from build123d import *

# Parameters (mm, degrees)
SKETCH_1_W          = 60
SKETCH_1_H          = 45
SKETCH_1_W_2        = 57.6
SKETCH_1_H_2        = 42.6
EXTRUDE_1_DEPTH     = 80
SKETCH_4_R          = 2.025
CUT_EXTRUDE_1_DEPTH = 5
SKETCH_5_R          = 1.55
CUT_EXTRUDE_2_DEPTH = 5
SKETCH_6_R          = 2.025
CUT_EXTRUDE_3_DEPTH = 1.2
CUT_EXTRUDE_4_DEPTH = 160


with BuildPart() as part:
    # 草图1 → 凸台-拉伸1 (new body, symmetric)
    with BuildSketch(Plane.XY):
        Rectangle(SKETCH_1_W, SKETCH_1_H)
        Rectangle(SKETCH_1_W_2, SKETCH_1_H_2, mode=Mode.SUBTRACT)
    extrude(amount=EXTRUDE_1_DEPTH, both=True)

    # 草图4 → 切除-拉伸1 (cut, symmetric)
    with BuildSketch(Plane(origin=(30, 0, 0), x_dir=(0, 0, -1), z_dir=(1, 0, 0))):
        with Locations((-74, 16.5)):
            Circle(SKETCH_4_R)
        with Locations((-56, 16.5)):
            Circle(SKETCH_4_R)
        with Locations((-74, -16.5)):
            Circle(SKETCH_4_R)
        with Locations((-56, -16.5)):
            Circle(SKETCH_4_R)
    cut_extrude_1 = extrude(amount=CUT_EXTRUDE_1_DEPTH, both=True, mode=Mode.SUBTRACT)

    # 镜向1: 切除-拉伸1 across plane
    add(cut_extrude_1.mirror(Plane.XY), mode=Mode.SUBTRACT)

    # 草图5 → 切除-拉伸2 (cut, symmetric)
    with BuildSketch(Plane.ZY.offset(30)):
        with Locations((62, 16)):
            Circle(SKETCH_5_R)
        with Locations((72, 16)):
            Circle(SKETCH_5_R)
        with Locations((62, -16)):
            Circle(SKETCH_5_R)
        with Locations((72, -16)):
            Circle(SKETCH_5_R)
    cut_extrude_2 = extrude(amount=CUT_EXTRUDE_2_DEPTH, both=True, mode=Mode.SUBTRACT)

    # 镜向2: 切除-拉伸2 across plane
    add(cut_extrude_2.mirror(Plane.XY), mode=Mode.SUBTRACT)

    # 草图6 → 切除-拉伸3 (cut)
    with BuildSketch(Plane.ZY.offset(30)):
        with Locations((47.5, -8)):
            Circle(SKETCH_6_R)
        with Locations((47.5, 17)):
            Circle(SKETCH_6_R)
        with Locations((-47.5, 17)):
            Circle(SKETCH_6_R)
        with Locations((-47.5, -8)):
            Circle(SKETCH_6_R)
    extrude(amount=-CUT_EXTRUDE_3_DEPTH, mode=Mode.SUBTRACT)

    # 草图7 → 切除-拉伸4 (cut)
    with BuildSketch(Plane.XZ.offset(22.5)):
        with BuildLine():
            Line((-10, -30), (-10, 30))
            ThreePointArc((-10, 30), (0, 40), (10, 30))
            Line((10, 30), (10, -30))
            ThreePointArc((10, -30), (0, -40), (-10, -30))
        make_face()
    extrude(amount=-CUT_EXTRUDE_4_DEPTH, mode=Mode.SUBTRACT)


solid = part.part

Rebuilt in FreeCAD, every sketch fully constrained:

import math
import FreeCAD as App
import Part
import Sketcher
from FreeCAD import Vector
Q = App.Units.Quantity

doc = App.newDocument("Part")
body = doc.addObject("PartDesign::Body", "Body")

sketch1 = body.newObject("Sketcher::SketchObject", "Sketch")
sketch1.AttachmentSupport = (doc.getObject("XY_Plane"), [""])
sketch1.MapMode = "FlatFace"
sketch1.addGeometry(Part.LineSegment(Vector(-30, 22.5, 0), Vector(-30, -22.5, 0)), False)
sketch1.addGeometry(Part.LineSegment(Vector(-30, -22.5, 0), Vector(30, -22.5, 0)), False)
sketch1.addGeometry(Part.LineSegment(Vector(30, -22.5, 0), Vector(30, 22.5, 0)), False)
sketch1.addGeometry(Part.LineSegment(Vector(30, 22.5, 0), Vector(-30, 22.5, 0)), False)
sketch1.addGeometry(Part.LineSegment(Vector(28.8, -21.3, 0), Vector(-28.8, -21.3, 0)), False)
sketch1.addGeometry(Part.LineSegment(Vector(-28.8, -21.3, 0), Vector(-28.8, 21.3, 0)), False)
sketch1.addGeometry(Part.LineSegment(Vector(-28.8, 21.3, 0), Vector(28.8, 21.3, 0)), False)
sketch1.addGeometry(Part.LineSegment(Vector(28.8, 21.3, 0), Vector(28.8, -21.3, 0)), False)
sketch1.addConstraint(Sketcher.Constraint("Coincident", 0, 2, 1, 1))
sketch1.addConstraint(Sketcher.Constraint("Coincident", 1, 2, 2, 1))
sketch1.addConstraint(Sketcher.Constraint("Coincident", 2, 2, 3, 1))
sketch1.addConstraint(Sketcher.Constraint("Coincident", 3, 2, 0, 1))
sketch1.addConstraint(Sketcher.Constraint("Coincident", 4, 2, 5, 1))
sketch1.addConstraint(Sketcher.Constraint("Coincident", 5, 2, 6, 1))
sketch1.addConstraint(Sketcher.Constraint("Coincident", 6, 2, 7, 1))
sketch1.addConstraint(Sketcher.Constraint("Coincident", 7, 2, 4, 1))
sketch1.addConstraint(Sketcher.Constraint("Vertical", 0))
sketch1.addConstraint(Sketcher.Constraint("Horizontal", 1))
sketch1.addConstraint(Sketcher.Constraint("Vertical", 2))
sketch1.addConstraint(Sketcher.Constraint("Horizontal", 3))
sketch1.addConstraint(Sketcher.Constraint("Horizontal", 4))
sketch1.addConstraint(Sketcher.Constraint("Vertical", 5))
sketch1.addConstraint(Sketcher.Constraint("Horizontal", 6))
sketch1.addConstraint(Sketcher.Constraint("Vertical", 7))
sketch1.addConstraint(Sketcher.Constraint("Symmetric", 0, 2, 2, 2, -1, 1))
sketch1.addConstraint(Sketcher.Constraint("Symmetric", 4, 2, 6, 2, -1, 1))
sketch1.addConstraint(Sketcher.Constraint("DistanceX", 1, 1, 1, 2, Q("60 mm")))
sketch1.addConstraint(Sketcher.Constraint("DistanceY", 0, 2, 0, 1, Q("45 mm")))
sketch1.addConstraint(Sketcher.Constraint("DistanceX", 4, 2, 4, 1, Q("57.6 mm")))
sketch1.addConstraint(Sketcher.Constraint("DistanceY", 5, 1, 5, 2, Q("42.6 mm")))
pad1 = body.newObject("PartDesign::Pad", "Pad")
pad1.Profile = sketch1
pad1.Length = 160
pad1.Midplane = True

sketch2 = body.newObject("Sketcher::SketchObject", "Sketch001")
sketch2.AttachmentSupport = (doc.getObject("YZ_Plane"), [""])
sketch2.MapMode = "FlatFace"
sketch2.AttachmentOffset = App.Placement(Vector(0, 0, 30), App.Rotation())
sketch2.addGeometry(Part.Circle(Vector(16.5, 74, 0), Vector(0, 0, 1), 2.025), False)
sketch2.addGeometry(Part.Circle(Vector(16.5, 56, 0), Vector(0, 0, 1), 2.025), False)
sketch2.addGeometry(Part.Circle(Vector(-16.5, 74, 0), Vector(0, 0, 1), 2.025), False)
sketch2.addGeometry(Part.Circle(Vector(-16.5, 56, 0), Vector(0, 0, 1), 2.025), False)
sketch2.addConstraint(Sketcher.Constraint("Equal", 0, 1))
sketch2.addConstraint(Sketcher.Constraint("Equal", 1, 2))
sketch2.addConstraint(Sketcher.Constraint("Equal", 2, 3))
sketch2.addConstraint(Sketcher.Constraint("Symmetric", 0, 3, 2, 3, -2))
sketch2.addConstraint(Sketcher.Constraint("Symmetric", 1, 3, 3, 3, -2))
sketch2.addConstraint(Sketcher.Constraint("Vertical", 0, 3, 1, 3))
sketch2.addConstraint(Sketcher.Constraint("Diameter", 0, Q("4.05 mm")))
sketch2.addConstraint(Sketcher.Constraint("DistanceY", -1, 1, 0, 3, Q("74 mm")))
sketch2.addConstraint(Sketcher.Constraint("DistanceY", -1, 1, 1, 3, Q("56 mm")))
sketch2.addConstraint(Sketcher.Constraint("DistanceX", 2, 3, 0, 3, Q("33 mm")))
pocket1 = body.newObject("PartDesign::Pocket", "Pocket")
pocket1.Profile = sketch2
pocket1.Length = 10
pocket1.Midplane = True
doc.recompute()

mirrored = body.newObject("PartDesign::Mirrored", "Mirrored")
mirrored.Originals = [pocket1]
mirrored.MirrorPlane = (doc.getObject("XY_Plane"), [""])
body.Tip = mirrored

sketch3 = body.newObject("Sketcher::SketchObject", "Sketch002")
sketch3.AttachmentSupport = (doc.getObject("YZ_Plane"), [""])
sketch3.MapMode = "FlatFace"
sketch3.AttachmentOffset = App.Placement(Vector(0, 0, -30), App.Rotation())
sketch3.addGeometry(Part.Circle(Vector(16, 62, 0), Vector(0, 0, 1), 1.55), False)
sketch3.addGeometry(Part.Circle(Vector(16, 72, 0), Vector(0, 0, 1), 1.55), False)
sketch3.addGeometry(Part.Circle(Vector(-16, 62, 0), Vector(0, 0, 1), 1.55), False)
sketch3.addGeometry(Part.Circle(Vector(-16, 72, 0), Vector(0, 0, 1), 1.55), False)
sketch3.addConstraint(Sketcher.Constraint("Equal", 0, 1))
sketch3.addConstraint(Sketcher.Constraint("Equal", 1, 2))
sketch3.addConstraint(Sketcher.Constraint("Equal", 2, 3))
sketch3.addConstraint(Sketcher.Constraint("Symmetric", 0, 3, 2, 3, -2))
sketch3.addConstraint(Sketcher.Constraint("Symmetric", 1, 3, 3, 3, -2))
sketch3.addConstraint(Sketcher.Constraint("Vertical", 0, 3, 1, 3))
sketch3.addConstraint(Sketcher.Constraint("Diameter", 0, Q("3.1 mm")))
sketch3.addConstraint(Sketcher.Constraint("DistanceX", -1, 1, 0, 3, Q("16 mm")))
sketch3.addConstraint(Sketcher.Constraint("DistanceY", -1, 1, 0, 3, Q("62 mm")))
sketch3.addConstraint(Sketcher.Constraint("DistanceY", -1, 1, 1, 3, Q("72 mm")))
pocket2 = body.newObject("PartDesign::Pocket", "Pocket001")
pocket2.Profile = sketch3
pocket2.Length = 10
pocket2.Midplane = True
doc.recompute()

mirrored2 = body.newObject("PartDesign::Mirrored", "Mirrored001")
mirrored2.Originals = [pocket2]
mirrored2.MirrorPlane = (doc.getObject("XY_Plane"), [""])
body.Tip = mirrored2

sketch4 = body.newObject("Sketcher::SketchObject", "Sketch003")
sketch4.AttachmentSupport = (doc.getObject("YZ_Plane"), [""])
sketch4.MapMode = "FlatFace"
sketch4.AttachmentOffset = App.Placement(Vector(0, 0, -30), App.Rotation())
sketch4.addGeometry(Part.Circle(Vector(-8, 47.5, 0), Vector(0, 0, 1), 2.025), False)
sketch4.addGeometry(Part.Circle(Vector(17, 47.5, 0), Vector(0, 0, 1), 2.025), False)
sketch4.addGeometry(Part.Circle(Vector(17, -47.5, 0), Vector(0, 0, 1), 2.025), False)
sketch4.addGeometry(Part.Circle(Vector(-8, -47.5, 0), Vector(0, 0, 1), 2.025), False)
sketch4.addConstraint(Sketcher.Constraint("Equal", 0, 1))
sketch4.addConstraint(Sketcher.Constraint("Equal", 1, 2))
sketch4.addConstraint(Sketcher.Constraint("Equal", 2, 3))
sketch4.addConstraint(Sketcher.Constraint("Symmetric", 1, 3, 2, 3, -1))
sketch4.addConstraint(Sketcher.Constraint("Symmetric", 0, 3, 3, 3, -1))
sketch4.addConstraint(Sketcher.Constraint("Horizontal", 0, 3, 1, 3))
sketch4.addConstraint(Sketcher.Constraint("Diameter", 0, Q("4.05 mm")))
sketch4.addConstraint(Sketcher.Constraint("DistanceX", 0, 3, -1, 1, Q("8 mm")))
sketch4.addConstraint(Sketcher.Constraint("DistanceX", -1, 1, 1, 3, Q("17 mm")))
sketch4.addConstraint(Sketcher.Constraint("DistanceY", 2, 3, 1, 3, Q("95 mm")))
pocket3 = body.newObject("PartDesign::Pocket", "Pocket002")
pocket3.Profile = sketch4
pocket3.Length = 1.2
pocket3.Reversed = True

sketch5 = body.newObject("Sketcher::SketchObject", "Sketch004")
sketch5.AttachmentSupport = (doc.getObject("XZ_Plane"), [""])
sketch5.MapMode = "FlatFace"
sketch5.AttachmentOffset = App.Placement(Vector(0, 0, 22.5), App.Rotation())
sketch5.addGeometry(Part.LineSegment(Vector(-10, 30, 0), Vector(-10, -30, 0)), False)
sketch5.addGeometry(Part.ArcOfCircle(Part.Circle(Vector(0, -30, 0), Vector(0, 0, 1), 10), math.radians(180), math.radians(360)), False)
sketch5.addGeometry(Part.LineSegment(Vector(10, -30, 0), Vector(10, 30, 0)), False)
sketch5.addGeometry(Part.ArcOfCircle(Part.Circle(Vector(0, 30, 0), Vector(0, 0, 1), 10), math.radians(0), math.radians(180)), False)
sketch5.addConstraint(Sketcher.Constraint("Tangent", 0, 2, 1, 1))
sketch5.addConstraint(Sketcher.Constraint("Tangent", 1, 2, 2, 1))
sketch5.addConstraint(Sketcher.Constraint("Tangent", 2, 2, 3, 1))
sketch5.addConstraint(Sketcher.Constraint("Tangent", 3, 2, 0, 1))
sketch5.addConstraint(Sketcher.Constraint("Vertical", 0))
sketch5.addConstraint(Sketcher.Constraint("Vertical", 2))
sketch5.addConstraint(Sketcher.Constraint("Symmetric", 1, 3, 3, 3, -1, 1))
sketch5.addConstraint(Sketcher.Constraint("Radius", 1, Q("10 mm")))
sketch5.addConstraint(Sketcher.Constraint("DistanceY", 0, 2, 0, 1, Q("60 mm")))
pocket4 = body.newObject("PartDesign::Pocket", "Pocket003")
pocket4.Profile = sketch5
pocket4.Length = 160

doc.recompute()
